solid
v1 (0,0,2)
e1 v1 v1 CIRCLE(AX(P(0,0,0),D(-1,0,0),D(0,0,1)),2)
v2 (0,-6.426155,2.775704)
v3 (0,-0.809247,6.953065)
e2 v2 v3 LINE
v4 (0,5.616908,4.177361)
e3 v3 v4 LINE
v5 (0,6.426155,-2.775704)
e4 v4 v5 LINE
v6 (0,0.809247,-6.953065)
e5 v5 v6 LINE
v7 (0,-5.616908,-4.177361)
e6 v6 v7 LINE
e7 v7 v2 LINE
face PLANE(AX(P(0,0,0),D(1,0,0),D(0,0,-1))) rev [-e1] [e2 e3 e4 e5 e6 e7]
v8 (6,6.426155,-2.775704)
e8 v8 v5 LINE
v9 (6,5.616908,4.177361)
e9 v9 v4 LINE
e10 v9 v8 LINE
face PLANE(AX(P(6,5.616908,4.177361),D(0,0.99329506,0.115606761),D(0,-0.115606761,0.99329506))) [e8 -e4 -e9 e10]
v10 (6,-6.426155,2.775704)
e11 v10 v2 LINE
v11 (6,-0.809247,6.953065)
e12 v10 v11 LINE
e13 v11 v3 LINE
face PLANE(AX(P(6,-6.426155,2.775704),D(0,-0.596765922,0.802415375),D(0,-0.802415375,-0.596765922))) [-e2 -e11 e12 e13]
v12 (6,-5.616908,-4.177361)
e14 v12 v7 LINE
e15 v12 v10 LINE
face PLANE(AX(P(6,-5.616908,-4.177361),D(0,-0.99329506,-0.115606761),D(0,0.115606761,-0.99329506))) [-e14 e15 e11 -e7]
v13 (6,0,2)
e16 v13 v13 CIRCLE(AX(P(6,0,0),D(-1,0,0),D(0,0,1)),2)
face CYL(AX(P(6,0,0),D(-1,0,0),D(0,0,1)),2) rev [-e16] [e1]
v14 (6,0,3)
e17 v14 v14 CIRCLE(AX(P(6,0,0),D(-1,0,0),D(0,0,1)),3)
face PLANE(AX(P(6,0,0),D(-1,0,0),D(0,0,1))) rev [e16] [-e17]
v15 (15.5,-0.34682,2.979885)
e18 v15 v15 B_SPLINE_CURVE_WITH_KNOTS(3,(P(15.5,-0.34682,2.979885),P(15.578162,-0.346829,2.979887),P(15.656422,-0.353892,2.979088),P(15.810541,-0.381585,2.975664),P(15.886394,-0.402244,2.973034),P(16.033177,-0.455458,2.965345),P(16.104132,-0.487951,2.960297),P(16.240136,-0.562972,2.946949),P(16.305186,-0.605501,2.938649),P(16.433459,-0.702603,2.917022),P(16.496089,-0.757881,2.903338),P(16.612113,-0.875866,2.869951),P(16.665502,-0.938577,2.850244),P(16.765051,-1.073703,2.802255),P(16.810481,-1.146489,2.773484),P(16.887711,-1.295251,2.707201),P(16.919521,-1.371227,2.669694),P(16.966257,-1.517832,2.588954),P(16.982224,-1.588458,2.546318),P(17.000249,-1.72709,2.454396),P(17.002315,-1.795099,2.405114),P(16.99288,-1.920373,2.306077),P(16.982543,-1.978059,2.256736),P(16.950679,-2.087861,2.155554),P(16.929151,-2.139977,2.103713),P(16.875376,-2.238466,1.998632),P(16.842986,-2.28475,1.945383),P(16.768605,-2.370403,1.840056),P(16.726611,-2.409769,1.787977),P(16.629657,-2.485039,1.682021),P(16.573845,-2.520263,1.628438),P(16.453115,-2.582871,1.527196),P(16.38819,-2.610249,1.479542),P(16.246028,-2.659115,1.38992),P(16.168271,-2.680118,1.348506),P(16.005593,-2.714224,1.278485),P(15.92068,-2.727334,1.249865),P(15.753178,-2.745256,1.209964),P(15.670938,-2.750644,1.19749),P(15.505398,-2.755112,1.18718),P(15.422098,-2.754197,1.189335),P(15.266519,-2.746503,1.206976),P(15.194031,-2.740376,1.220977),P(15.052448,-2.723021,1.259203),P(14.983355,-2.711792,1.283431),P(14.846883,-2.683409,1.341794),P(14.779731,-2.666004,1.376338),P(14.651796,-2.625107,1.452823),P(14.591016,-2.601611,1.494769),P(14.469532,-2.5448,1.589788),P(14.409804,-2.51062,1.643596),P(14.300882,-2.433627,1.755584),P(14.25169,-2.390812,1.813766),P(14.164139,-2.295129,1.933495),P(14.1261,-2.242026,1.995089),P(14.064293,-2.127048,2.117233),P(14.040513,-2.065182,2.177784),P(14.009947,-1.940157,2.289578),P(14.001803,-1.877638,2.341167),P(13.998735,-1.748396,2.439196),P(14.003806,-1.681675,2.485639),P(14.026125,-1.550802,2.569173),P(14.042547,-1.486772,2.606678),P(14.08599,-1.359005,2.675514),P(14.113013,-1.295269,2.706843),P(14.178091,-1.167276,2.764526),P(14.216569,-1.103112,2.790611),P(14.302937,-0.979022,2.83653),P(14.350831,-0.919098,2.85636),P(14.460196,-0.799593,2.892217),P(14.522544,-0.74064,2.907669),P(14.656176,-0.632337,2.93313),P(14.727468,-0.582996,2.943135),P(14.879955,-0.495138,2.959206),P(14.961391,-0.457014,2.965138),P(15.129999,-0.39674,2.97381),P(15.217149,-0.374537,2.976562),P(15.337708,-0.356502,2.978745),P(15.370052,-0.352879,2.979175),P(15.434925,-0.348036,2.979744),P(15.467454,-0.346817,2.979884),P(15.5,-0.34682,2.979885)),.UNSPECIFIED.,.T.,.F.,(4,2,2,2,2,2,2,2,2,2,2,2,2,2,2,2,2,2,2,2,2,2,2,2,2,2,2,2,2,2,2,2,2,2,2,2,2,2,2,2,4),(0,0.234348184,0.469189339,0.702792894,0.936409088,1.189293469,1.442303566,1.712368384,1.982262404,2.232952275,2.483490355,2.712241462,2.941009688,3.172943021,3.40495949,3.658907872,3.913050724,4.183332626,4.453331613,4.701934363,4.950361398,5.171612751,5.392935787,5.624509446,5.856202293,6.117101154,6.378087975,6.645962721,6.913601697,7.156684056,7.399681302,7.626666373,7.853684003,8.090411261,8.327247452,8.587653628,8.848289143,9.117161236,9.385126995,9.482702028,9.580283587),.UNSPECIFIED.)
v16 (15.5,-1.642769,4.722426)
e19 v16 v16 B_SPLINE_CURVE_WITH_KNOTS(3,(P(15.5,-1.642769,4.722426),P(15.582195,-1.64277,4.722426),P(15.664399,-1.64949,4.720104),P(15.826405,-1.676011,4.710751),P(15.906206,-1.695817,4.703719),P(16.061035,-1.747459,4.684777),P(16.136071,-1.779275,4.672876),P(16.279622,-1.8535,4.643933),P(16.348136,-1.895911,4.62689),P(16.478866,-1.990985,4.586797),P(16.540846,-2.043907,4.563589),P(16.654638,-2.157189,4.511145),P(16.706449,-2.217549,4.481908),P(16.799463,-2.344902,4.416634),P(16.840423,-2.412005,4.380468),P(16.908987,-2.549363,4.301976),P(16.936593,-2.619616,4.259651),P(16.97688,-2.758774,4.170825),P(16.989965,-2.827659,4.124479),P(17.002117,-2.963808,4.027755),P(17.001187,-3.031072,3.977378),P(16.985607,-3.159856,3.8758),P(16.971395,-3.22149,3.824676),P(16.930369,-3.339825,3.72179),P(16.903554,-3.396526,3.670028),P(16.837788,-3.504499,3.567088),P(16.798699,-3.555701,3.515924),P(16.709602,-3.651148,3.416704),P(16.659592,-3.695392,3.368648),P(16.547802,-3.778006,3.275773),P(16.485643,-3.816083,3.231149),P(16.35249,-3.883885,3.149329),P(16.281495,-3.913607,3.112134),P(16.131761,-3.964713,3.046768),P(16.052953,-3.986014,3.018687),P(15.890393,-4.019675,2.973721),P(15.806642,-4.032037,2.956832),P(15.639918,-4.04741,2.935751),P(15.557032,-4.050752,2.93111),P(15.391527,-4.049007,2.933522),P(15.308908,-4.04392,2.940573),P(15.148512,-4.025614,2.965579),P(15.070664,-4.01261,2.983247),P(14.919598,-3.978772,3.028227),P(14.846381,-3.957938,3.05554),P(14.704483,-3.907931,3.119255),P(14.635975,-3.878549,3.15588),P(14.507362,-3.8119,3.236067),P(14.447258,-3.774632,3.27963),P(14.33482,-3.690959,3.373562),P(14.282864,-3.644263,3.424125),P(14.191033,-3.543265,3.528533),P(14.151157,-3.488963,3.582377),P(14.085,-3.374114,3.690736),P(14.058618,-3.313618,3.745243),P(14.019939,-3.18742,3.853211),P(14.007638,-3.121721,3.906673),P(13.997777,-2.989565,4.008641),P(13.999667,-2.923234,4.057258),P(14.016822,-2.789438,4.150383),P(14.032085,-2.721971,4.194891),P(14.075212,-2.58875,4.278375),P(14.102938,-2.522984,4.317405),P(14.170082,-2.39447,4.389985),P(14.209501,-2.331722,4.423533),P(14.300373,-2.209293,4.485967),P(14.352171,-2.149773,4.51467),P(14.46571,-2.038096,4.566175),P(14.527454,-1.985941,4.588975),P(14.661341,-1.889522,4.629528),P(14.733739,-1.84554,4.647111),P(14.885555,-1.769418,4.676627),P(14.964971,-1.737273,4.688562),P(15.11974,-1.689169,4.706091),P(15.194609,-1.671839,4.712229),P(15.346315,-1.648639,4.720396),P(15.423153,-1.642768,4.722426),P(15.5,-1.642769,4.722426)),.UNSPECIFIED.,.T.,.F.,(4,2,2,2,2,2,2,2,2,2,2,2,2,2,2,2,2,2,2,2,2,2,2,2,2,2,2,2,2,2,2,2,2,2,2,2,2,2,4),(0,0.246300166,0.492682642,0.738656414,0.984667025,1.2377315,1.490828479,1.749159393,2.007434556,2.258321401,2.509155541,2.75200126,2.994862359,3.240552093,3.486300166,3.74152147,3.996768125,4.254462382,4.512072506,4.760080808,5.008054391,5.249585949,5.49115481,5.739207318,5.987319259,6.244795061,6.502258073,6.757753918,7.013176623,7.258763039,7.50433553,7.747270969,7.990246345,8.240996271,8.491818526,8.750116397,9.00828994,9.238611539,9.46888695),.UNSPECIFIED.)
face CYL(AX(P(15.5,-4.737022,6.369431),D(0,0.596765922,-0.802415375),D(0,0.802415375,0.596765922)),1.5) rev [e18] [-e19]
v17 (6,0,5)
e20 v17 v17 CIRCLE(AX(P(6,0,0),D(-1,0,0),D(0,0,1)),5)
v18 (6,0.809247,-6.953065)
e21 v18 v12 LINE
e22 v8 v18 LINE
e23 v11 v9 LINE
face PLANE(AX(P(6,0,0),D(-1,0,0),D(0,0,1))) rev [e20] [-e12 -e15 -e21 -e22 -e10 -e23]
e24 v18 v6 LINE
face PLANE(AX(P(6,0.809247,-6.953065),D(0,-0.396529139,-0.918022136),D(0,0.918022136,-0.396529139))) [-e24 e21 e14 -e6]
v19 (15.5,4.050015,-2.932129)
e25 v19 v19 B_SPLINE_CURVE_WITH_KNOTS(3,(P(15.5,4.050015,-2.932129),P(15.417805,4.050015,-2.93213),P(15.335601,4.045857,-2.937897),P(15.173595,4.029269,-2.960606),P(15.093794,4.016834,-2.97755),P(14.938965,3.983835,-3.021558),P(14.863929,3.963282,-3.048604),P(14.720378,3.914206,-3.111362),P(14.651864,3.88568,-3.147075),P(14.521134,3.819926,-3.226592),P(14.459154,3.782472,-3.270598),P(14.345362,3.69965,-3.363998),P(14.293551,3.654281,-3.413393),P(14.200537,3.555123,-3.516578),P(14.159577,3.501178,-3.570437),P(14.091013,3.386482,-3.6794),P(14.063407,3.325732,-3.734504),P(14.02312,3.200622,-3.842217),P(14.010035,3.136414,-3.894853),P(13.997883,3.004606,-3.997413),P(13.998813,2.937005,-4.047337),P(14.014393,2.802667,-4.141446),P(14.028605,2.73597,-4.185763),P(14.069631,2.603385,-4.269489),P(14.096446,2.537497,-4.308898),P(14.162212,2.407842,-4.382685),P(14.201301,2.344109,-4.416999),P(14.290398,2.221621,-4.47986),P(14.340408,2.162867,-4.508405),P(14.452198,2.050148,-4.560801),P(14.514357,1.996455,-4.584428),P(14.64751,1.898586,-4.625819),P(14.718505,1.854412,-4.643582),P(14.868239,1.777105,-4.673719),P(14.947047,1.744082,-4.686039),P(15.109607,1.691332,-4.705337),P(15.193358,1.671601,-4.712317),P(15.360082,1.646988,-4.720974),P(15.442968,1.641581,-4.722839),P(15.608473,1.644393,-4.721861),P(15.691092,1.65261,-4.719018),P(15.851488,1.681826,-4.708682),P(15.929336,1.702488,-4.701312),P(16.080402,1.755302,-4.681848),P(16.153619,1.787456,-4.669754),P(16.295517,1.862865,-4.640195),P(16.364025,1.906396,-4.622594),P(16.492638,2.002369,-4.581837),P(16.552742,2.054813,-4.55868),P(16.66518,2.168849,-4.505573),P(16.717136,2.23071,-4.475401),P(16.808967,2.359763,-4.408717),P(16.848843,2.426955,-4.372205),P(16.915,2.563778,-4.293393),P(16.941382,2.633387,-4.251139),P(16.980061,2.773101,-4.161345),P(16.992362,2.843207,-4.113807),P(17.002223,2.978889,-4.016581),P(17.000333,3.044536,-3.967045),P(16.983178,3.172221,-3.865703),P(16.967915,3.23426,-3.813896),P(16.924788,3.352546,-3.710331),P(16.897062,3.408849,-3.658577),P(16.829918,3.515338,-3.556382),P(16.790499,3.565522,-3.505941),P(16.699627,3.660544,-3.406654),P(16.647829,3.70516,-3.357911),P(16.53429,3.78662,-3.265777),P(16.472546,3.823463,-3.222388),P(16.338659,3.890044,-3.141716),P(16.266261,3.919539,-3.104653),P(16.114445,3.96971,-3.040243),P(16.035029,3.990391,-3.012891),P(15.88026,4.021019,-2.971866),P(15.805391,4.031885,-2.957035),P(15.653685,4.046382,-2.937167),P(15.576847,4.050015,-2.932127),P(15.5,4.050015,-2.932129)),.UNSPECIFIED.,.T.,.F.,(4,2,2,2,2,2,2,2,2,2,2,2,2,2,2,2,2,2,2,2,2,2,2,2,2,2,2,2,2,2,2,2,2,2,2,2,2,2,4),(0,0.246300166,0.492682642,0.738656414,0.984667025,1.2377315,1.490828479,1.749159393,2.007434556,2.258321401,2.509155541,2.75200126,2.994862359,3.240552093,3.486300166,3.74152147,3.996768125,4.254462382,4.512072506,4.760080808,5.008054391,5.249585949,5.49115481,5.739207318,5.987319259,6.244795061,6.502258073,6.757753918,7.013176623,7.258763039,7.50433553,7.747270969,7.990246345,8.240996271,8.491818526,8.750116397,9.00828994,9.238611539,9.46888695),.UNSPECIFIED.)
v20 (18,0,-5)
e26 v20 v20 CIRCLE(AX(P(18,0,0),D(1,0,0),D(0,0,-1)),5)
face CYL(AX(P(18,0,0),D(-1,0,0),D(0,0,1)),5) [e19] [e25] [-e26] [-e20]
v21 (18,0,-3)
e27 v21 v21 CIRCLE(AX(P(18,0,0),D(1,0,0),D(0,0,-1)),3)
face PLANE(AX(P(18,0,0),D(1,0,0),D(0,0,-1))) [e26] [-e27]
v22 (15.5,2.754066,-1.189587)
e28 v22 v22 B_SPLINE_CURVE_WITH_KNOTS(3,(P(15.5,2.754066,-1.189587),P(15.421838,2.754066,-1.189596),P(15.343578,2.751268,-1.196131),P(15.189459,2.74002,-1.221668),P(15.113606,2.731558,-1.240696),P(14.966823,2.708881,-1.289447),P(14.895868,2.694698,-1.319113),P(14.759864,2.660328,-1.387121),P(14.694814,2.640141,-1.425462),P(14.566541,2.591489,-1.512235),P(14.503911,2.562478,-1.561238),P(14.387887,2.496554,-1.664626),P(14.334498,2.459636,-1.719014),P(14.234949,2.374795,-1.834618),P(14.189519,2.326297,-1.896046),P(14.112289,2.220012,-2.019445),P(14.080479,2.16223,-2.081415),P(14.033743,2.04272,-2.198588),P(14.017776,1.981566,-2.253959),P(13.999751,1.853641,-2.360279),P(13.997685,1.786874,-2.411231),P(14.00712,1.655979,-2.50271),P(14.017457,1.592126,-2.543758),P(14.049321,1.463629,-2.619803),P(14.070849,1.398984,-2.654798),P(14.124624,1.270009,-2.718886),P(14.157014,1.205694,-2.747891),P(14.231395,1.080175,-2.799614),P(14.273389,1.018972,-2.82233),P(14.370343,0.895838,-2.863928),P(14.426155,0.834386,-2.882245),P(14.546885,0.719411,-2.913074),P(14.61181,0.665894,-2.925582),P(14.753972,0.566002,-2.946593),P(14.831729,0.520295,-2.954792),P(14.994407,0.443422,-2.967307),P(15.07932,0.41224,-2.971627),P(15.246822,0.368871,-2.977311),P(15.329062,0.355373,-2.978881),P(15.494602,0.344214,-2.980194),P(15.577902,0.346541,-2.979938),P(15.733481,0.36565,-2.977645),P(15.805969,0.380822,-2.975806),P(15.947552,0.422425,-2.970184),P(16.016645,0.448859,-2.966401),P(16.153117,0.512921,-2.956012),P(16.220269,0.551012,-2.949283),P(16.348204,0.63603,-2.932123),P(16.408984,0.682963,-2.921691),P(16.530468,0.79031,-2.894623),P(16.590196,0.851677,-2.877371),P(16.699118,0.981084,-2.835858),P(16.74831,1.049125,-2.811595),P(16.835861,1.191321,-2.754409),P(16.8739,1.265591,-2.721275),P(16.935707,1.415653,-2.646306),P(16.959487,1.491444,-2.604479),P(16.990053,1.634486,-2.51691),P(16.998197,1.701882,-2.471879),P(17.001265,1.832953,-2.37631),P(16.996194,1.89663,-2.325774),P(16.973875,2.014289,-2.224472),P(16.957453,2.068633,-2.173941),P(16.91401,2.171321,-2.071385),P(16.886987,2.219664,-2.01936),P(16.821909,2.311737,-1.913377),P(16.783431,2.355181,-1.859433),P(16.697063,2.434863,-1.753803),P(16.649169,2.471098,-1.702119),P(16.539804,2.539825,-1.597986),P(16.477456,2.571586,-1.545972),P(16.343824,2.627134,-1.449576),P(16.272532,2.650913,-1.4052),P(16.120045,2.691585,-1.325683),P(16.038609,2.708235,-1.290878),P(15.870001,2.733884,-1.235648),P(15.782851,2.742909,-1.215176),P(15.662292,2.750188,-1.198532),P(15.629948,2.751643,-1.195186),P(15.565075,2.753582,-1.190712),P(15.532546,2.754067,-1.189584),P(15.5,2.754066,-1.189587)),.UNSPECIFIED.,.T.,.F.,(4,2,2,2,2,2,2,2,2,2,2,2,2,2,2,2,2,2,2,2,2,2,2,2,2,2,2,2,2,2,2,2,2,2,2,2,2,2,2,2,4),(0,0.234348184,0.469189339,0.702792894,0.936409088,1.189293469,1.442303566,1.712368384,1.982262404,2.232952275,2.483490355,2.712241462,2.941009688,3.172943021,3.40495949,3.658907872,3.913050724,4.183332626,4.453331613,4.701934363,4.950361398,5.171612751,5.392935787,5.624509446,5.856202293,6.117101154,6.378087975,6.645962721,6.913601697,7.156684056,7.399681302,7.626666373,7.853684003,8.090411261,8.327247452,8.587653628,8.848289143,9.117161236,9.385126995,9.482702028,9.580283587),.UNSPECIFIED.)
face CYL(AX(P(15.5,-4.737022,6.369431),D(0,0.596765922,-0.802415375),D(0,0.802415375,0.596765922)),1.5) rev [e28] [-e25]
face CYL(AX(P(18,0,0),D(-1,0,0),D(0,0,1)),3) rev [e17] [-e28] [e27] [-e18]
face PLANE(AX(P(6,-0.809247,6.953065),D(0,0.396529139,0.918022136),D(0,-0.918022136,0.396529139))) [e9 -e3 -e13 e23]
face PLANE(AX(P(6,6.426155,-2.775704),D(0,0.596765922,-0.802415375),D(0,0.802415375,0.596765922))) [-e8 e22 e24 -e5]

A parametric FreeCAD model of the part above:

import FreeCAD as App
import Part
import Sketcher
from FreeCAD import Vector
Q = App.Units.Quantity


def add_polygon(sketch, points):
    """Adds a closed chain of lines whose ends are joined by coincident constraints."""
    first, n = sketch.GeometryCount, len(points)
    for a, b in zip(points, points[1:] + points[:1]):
        sketch.addGeometry(Part.LineSegment(App.Vector(*a, 0), App.Vector(*b, 0)), False)
    for i in range(n):
        sketch.addConstraint(Sketcher.Constraint("Coincident", first + i, 2, first + (i + 1) % n, 1))

doc = App.newDocument("Part")
params = doc.addObject("Spreadsheet::Sheet", "Params")
for row, (alias, value) in enumerate([
    ("sketch1_diameter", "10 mm"),
    ("sketch1_diameter2", "6 mm"),
    ("pad1_length", "18 mm"),
    ("sketch2_length", "7 mm"),
    ("pad2_length", "6 mm"),
    ("sketch3_diameter", "4 mm"),
    ("pocket1_length", "6 mm"),
    ("sketch4_diameter", "3 mm"),
    ("pocket2_length", "14 mm"),
], start=1):
    params.set(f"A{row}", alias)
    params.set(f"B{row}", "=" + value)
    params.setAlias(f"B{row}", alias)

body = doc.addObject("PartDesign::Body", "Body")

# Sketch on YZ plane
sketch1 = body.newObject("Sketcher::SketchObject", "Sketch")
sketch1.AttachmentSupport = (doc.getObject("YZ_Plane"), [""])
sketch1.MapMode = "FlatFace"
sketch1.addGeometry([
    Part.Circle(Vector(0, 0, 0), Vector(0, 0, 1), 5),
    Part.Circle(Vector(0, 0, 0), Vector(0, 0, 1), 3),
], False)
sketch1.addConstraint([
    Sketcher.Constraint("Coincident", 0, 3, -1, 1),
    Sketcher.Constraint("Coincident", 1, 3, -1, 1),
    Sketcher.Constraint("Diameter", 0, Q("10 mm")),
    Sketcher.Constraint("Diameter", 1, Q("6 mm")),
])
sketch1.setExpression("Constraints[2]", "Params.sketch1_diameter")
sketch1.setExpression("Constraints[3]", "Params.sketch1_diameter2")
pad1 = body.newObject("PartDesign::Pad", "Pad")
pad1.Profile = sketch1
pad1.setExpression("Length", "Params.pad1_length")

# Sketch on YZ plane
sketch2 = body.newObject("Sketcher::SketchObject", "Sketch001")
sketch2.AttachmentSupport = (doc.getObject("YZ_Plane"), [""])
sketch2.MapMode = "FlatFace"
add_polygon(sketch2, [(1, -7), (-6, -4), (-6, 3), (-1, 7), (6, 4), (6, -3)])  # lines 0-5
sketch2.addConstraint([
    Sketcher.Constraint("Symmetric", 0, 2, 3, 2, -1, 1),
    Sketcher.Constraint("Symmetric", 1, 2, 4, 2, -1, 1),
    Sketcher.Constraint("Symmetric", 2, 2, 5, 2, -1, 1),
    Sketcher.Constraint("Equal", 0, 1),
    Sketcher.Constraint("Equal", 1, 2),
    Sketcher.Constraint("Distance", 0, Q("7 mm")),
    Sketcher.Constraint("DistanceY", 0, 2, -1, 1, Q("4.177361 mm")),
    Sketcher.Constraint("DistanceY", 1, 2, 2, 2, Q("4.177361 mm")),
    Sketcher.Constraint("DistanceX", 0, 2, 2, 2, Q("4.80766 mm")),
])
sketch2.setExpression("Constraints[11]", "Params.sketch2_length")
pad2 = body.newObject("PartDesign::Pad", "Pad001")
pad2.Profile = sketch2
pad2.setExpression("Length", "Params.pad2_length")

# Sketch on YZ plane
sketch3 = body.newObject("Sketcher::SketchObject", "Sketch002")
sketch3.AttachmentSupport = (doc.getObject("YZ_Plane"), [""])
sketch3.MapMode = "FlatFace"
sketch3.addGeometry(Part.Circle(Vector(0, 0, 0), Vector(0, 0, 1), 2), False)
sketch3.addConstraint([
    Sketcher.Constraint("Coincident", 0, 3, -1, 1),
    Sketcher.Constraint("Diameter", 0, Q("4 mm")),
])
sketch3.setExpression("Constraints[1]", "Params.sketch3_diameter")
pocket1 = body.newObject("PartDesign::Pocket", "Pocket")
pocket1.Profile = sketch3
pocket1.setExpression("Length", "Params.pocket1_length")
pocket1.Reversed = True

# Sketch on an angled plane
sketch4 = body.newObject("Sketcher::SketchObject", "Sketch003")
sketch4.Placement = App.Placement(Vector(0, 3.617701, -4.864385), App.Rotation(Vector(-1, 0, 0), Vector(0, 0.802415375, 0.596765922), Vector(0, 0.596765922, -0.802415375), "ZXY"))
sketch4.addGeometry(Part.Circle(Vector(-15.5, 0, 0), Vector(0, 0, 1), 1.5), False)
sketch4.addConstraint([
    Sketcher.Constraint("PointOnObject", 0, 3, -1),
    Sketcher.Constraint("Diameter", 0, Q("3 mm")),
    Sketcher.Constraint("DistanceX", 0, 3, -1, 1, Q("15.5 mm")),
])
sketch4.setExpression("Constraints[1]", "Params.sketch4_diameter")
pocket2 = body.newObject("PartDesign::Pocket", "Pocket001")
pocket2.Profile = sketch4
pocket2.setExpression("Length", "Params.pocket2_length")

doc.recompute()
